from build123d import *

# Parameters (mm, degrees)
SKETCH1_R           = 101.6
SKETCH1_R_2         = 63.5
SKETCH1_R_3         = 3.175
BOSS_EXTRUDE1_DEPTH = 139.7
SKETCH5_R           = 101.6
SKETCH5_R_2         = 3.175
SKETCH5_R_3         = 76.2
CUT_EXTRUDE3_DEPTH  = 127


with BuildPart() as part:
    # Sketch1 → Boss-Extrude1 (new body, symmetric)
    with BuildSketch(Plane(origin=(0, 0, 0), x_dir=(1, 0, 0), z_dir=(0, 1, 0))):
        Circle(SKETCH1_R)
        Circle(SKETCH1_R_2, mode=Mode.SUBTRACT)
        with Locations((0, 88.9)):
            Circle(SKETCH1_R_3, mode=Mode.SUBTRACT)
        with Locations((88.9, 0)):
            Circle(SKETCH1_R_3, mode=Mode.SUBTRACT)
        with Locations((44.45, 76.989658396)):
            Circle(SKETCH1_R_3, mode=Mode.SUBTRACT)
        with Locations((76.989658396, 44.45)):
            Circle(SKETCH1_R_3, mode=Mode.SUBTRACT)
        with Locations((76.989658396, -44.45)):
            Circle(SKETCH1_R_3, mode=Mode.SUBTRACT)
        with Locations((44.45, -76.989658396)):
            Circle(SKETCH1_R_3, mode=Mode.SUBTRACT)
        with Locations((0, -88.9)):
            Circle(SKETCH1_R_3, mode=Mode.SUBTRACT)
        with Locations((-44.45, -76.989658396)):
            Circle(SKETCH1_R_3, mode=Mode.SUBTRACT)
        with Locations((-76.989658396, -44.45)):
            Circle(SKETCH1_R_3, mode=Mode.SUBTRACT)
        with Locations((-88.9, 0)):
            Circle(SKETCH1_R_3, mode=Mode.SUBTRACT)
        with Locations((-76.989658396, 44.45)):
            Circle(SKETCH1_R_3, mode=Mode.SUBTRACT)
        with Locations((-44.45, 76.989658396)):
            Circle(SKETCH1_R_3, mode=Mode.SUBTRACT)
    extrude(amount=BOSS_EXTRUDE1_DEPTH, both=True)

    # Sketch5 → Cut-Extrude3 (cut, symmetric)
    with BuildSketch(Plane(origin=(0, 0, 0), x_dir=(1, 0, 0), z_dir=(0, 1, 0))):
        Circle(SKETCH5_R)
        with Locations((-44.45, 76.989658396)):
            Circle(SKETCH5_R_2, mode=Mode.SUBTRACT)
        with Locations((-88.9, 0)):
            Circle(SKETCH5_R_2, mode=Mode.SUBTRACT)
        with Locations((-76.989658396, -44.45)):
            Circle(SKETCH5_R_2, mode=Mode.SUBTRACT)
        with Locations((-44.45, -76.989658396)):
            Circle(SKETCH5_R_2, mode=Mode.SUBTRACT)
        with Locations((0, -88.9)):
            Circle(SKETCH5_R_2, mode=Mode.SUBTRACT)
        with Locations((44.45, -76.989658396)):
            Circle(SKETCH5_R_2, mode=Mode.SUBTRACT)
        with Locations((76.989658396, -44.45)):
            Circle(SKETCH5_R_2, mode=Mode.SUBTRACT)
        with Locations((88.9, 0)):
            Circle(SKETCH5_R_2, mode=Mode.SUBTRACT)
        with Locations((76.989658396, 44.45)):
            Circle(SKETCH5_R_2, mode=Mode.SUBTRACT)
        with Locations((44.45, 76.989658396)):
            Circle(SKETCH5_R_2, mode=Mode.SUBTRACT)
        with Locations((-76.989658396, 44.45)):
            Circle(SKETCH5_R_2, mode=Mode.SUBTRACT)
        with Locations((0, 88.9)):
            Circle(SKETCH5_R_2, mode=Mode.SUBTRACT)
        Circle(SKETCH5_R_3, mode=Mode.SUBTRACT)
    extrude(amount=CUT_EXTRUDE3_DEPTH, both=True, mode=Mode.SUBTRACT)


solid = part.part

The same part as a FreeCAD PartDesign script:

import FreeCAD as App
import Part
import Sketcher
Q = App.Units.Quantity

doc = App.newDocument("Part")
body = doc.addObject("PartDesign::Body", "Body")

sketch1 = doc.addObject("Sketcher::SketchObject", "Sketch")
body.addObject(sketch1)
sketch1.AttachmentSupport = (doc.XZ_Plane, [""])
sketch1.MapMode = "FlatFace"
sketch1.addGeometry(Part.Circle(App.Vector(0, 0, 0), App.Vector(0, 0, 1), 101.6), False)
sketch1.addGeometry(Part.Circle(App.Vector(-44.5, 77, 0), App.Vector(0, 0, 1), 3.2), False)
sketch1.addGeometry(Part.Circle(App.Vector(-77, 44.5, 0), App.Vector(0, 0, 1), 3.2), False)
sketch1.addGeometry(Part.Circle(App.Vector(0, 88.9, 0), App.Vector(0, 0, 1), 3.2), False)
sketch1.addGeometry(Part.Circle(App.Vector(44.5, 77, 0), App.Vector(0, 0, 1), 3.2), False)
sketch1.addGeometry(Part.Circle(App.Vector(77, 44.5, 0), App.Vector(0, 0, 1), 3.2), False)
sketch1.addGeometry(Part.Circle(App.Vector(-88.9, 0, 0), App.Vector(0, 0, 1), 3.2), False)
sketch1.addGeometry(Part.Circle(App.Vector(-77, -44.5, 0), App.Vector(0, 0, 1), 3.2), False)
sketch1.addGeometry(Part.Circle(App.Vector(-44.5, -77, 0), App.Vector(0, 0, 1), 3.2), False)
sketch1.addGeometry(Part.Circle(App.Vector(0, 0, 0), App.Vector(0, 0, 1), 63.5), False)
sketch1.addGeometry(Part.Circle(App.Vector(88.9, 0, 0), App.Vector(0, 0, 1), 3.2), False)
sketch1.addGeometry(Part.Circle(App.Vector(77, -44.5, 0), App.Vector(0, 0, 1), 3.2), False)
sketch1.addGeometry(Part.Circle(App.Vector(0, -88.9, 0), App.Vector(0, 0, 1), 3.2), False)
sketch1.addGeometry(Part.Circle(App.Vector(44.5, -77, 0), App.Vector(0, 0, 1), 3.2), False)
sketch1.addConstraint(Sketcher.Constraint("Coincident", 0, 3, -1, 1))
sketch1.addConstraint(Sketcher.Constraint("Coincident", 9, 3, -1, 1))
sketch1.addConstraint(Sketcher.Constraint("Equal", 1, 2))
sketch1.addConstraint(Sketcher.Constraint("Equal", 2, 3))
sketch1.addConstraint(Sketcher.Constraint("Equal", 3, 4))
sketch1.addConstraint(Sketcher.Constraint("Equal", 4, 5))
sketch1.addConstraint(Sketcher.Constraint("Equal", 5, 6))
sketch1.addConstraint(Sketcher.Constraint("Equal", 6, 7))
sketch1.addConstraint(Sketcher.Constraint("Equal", 7, 8))
sketch1.addConstraint(Sketcher.Constraint("Equal", 8, 10))
sketch1.addConstraint(Sketcher.Constraint("Equal", 10, 11))
sketch1.addConstraint(Sketcher.Constraint("Equal", 11, 12))
sketch1.addConstraint(Sketcher.Constraint("Equal", 12, 13))
sketch1.addConstraint(Sketcher.Constraint("Symmetric", 5, 3, 7, 3, -1, 1))
sketch1.addConstraint(Sketcher.Constraint("Symmetric", 4, 3, 8, 3, -1, 1))
sketch1.addConstraint(Sketcher.Constraint("Symmetric", 6, 3, 10, 3, -1, 1))
sketch1.addConstraint(Sketcher.Constraint("Symmetric", 2, 3, 11, 3, -1, 1))
sketch1.addConstraint(Sketcher.Constraint("Symmetric", 3, 3, 12, 3, -1, 1))
sketch1.addConstraint(Sketcher.Constraint("Symmetric", 1, 3, 13, 3, -1, 1))
sketch1.addConstraint(Sketcher.Constraint("Symmetric", 1, 3, 4, 3, -2))
sketch1.addConstraint(Sketcher.Constraint("Symmetric", 2, 3, 5, 3, -2))
sketch1.addConstraint(Sketcher.Constraint("PointOnObject", 3, 3, -2))
sketch1.addConstraint(Sketcher.Constraint("PointOnObject", 6, 3, -1))
sketch1.addConstraint(Sketcher.Constraint("Diameter", 0, Q("8 in")))
sketch1.addConstraint(Sketcher.Constraint("Diameter", 9, Q("5 in")))
sketch1.addConstraint(Sketcher.Constraint("Diameter", 1, Q("0.25 in")))
sketch1.addConstraint(Sketcher.Constraint("DistanceY", -1, 1, 3, 3, Q("3.5 in")))
sketch1.addConstraint(Sketcher.Constraint("DistanceX", 6, 3, -1, 1, Q("3.5 in")))
sketch1.addConstraint(Sketcher.Constraint("DistanceX", 1, 3, 4, 3, Q("3.5 in")))
sketch1.addConstraint(Sketcher.Constraint("DistanceY", 7, 3, 2, 3, Q("3.5 in")))
sketch1.addConstraint(Sketcher.Constraint("DistanceY", -1, 1, 1, 3, Q("76.989658 mm")))
sketch1.addConstraint(Sketcher.Constraint("DistanceX", 2, 3, -1, 1, Q("76.989658 mm")))
pad1 = doc.addObject("PartDesign::Pad", "Pad")
body.addObject(pad1)
pad1.Profile = sketch1
pad1.Length = Q("11 in")
pad1.Midplane = True

sketch2 = doc.addObject("Sketcher::SketchObject", "Sketch001")
body.addObject(sketch2)
sketch2.AttachmentSupport = (doc.XZ_Plane, [""])
sketch2.MapMode = "FlatFace"
sketch2.addGeometry(Part.Circle(App.Vector(0, 0, 0), App.Vector(0, 0, 1), 101.6), False)
sketch2.addGeometry(Part.Circle(App.Vector(-44.5, 77, 0), App.Vector(0, 0, 1), 3.2), False)
sketch2.addGeometry(Part.Circle(App.Vector(-77, 44.5, 0), App.Vector(0, 0, 1), 3.2), False)
sketch2.addGeometry(Part.Circle(App.Vector(0, 88.9, 0), App.Vector(0, 0, 1), 3.2), False)
sketch2.addGeometry(Part.Circle(App.Vector(44.5, 77, 0), App.Vector(0, 0, 1), 3.2), False)
sketch2.addGeometry(Part.Circle(App.Vector(77, 44.5, 0), App.Vector(0, 0, 1), 3.2), False)
sketch2.addGeometry(Part.Circle(App.Vector(-88.9, 0, 0), App.Vector(0, 0, 1), 3.2), False)
sketch2.addGeometry(Part.Circle(App.Vector(-77, -44.5, 0), App.Vector(0, 0, 1), 3.2), False)
sketch2.addGeometry(Part.Circle(App.Vector(-44.5, -77, 0), App.Vector(0, 0, 1), 3.2), False)
sketch2.addGeometry(Part.Circle(App.Vector(0, 0, 0), App.Vector(0, 0, 1), 76.2), False)
sketch2.addGeometry(Part.Circle(App.Vector(88.9, 0, 0), App.Vector(0, 0, 1), 3.2), False)
sketch2.addGeometry(Part.Circle(App.Vector(77, -44.5, 0), App.Vector(0, 0, 1), 3.2), False)
sketch2.addGeometry(Part.Circle(App.Vector(0, -88.9, 0), App.Vector(0, 0, 1), 3.2), False)
sketch2.addGeometry(Part.Circle(App.Vector(44.5, -77, 0), App.Vector(0, 0, 1), 3.2), False)
sketch2.addConstraint(Sketcher.Constraint("Coincident", 0, 3, -1, 1))
sketch2.addConstraint(Sketcher.Constraint("Coincident", 9, 3, -1, 1))
sketch2.addConstraint(Sketcher.Constraint("Equal", 1, 2))
sketch2.addConstraint(Sketcher.Constraint("Equal", 2, 3))
sketch2.addConstraint(Sketcher.Constraint("Equal", 3, 4))
sketch2.addConstraint(Sketcher.Constraint("Equal", 4, 5))
sketch2.addConstraint(Sketcher.Constraint("Equal", 5, 6))
sketch2.addConstraint(Sketcher.Constraint("Equal", 6, 7))
sketch2.addConstraint(Sketcher.Constraint("Equal", 7, 8))
sketch2.addConstraint(Sketcher.Constraint("Equal", 8, 10))
sketch2.addConstraint(Sketcher.Constraint("Equal", 10, 11))
sketch2.addConstraint(Sketcher.Constraint("Equal", 11, 12))
sketch2.addConstraint(Sketcher.Constraint("Equal", 12, 13))
sketch2.addConstraint(Sketcher.Constraint("Symmetric", 5, 3, 7, 3, -1, 1))
sketch2.addConstraint(Sketcher.Constraint("Symmetric", 4, 3, 8, 3, -1, 1))
sketch2.addConstraint(Sketcher.Constraint("Symmetric", 6, 3, 10, 3, -1, 1))
sketch2.addConstraint(Sketcher.Constraint("Symmetric", 2, 3, 11, 3, -1, 1))
sketch2.addConstraint(Sketcher.Constraint("Symmetric", 3, 3, 12, 3, -1, 1))
sketch2.addConstraint(Sketcher.Constraint("Symmetric", 1, 3, 13, 3, -1, 1))
sketch2.addConstraint(Sketcher.Constraint("Symmetric", 1, 3, 4, 3, -2))
sketch2.addConstraint(Sketcher.Constraint("Symmetric", 2, 3, 5, 3, -2))
sketch2.addConstraint(Sketcher.Constraint("PointOnObject", 3, 3, -2))
sketch2.addConstraint(Sketcher.Constraint("PointOnObject", 6, 3, -1))
sketch2.addConstraint(Sketcher.Constraint("Diameter", 0, Q("8 in")))
sketch2.addConstraint(Sketcher.Constraint("Diameter", 9, Q("6 in")))
sketch2.addConstraint(Sketcher.Constraint("Diameter", 1, Q("0.25 in")))
sketch2.addConstraint(Sketcher.Constraint("DistanceY", -1, 1, 3, 3, Q("3.5 in")))
sketch2.addConstraint(Sketcher.Constraint("DistanceX", 6, 3, -1, 1, Q("3.5 in")))
sketch2.addConstraint(Sketcher.Constraint("DistanceX", 1, 3, 4, 3, Q("3.5 in")))
sketch2.addConstraint(Sketcher.Constraint("DistanceY", 7, 3, 2, 3, Q("3.5 in")))
sketch2.addConstraint(Sketcher.Constraint("DistanceY", -1, 1, 1, 3, Q("76.989658 mm")))
sketch2.addConstraint(Sketcher.Constraint("DistanceX", 2, 3, -1, 1, Q("76.989658 mm")))
pocket1 = doc.addObject("PartDesign::Pocket", "Pocket")
body.addObject(pocket1)
pocket1.Profile = sketch2
pocket1.Length = Q("10 in")
pocket1.Midplane = True

doc.recompute()
